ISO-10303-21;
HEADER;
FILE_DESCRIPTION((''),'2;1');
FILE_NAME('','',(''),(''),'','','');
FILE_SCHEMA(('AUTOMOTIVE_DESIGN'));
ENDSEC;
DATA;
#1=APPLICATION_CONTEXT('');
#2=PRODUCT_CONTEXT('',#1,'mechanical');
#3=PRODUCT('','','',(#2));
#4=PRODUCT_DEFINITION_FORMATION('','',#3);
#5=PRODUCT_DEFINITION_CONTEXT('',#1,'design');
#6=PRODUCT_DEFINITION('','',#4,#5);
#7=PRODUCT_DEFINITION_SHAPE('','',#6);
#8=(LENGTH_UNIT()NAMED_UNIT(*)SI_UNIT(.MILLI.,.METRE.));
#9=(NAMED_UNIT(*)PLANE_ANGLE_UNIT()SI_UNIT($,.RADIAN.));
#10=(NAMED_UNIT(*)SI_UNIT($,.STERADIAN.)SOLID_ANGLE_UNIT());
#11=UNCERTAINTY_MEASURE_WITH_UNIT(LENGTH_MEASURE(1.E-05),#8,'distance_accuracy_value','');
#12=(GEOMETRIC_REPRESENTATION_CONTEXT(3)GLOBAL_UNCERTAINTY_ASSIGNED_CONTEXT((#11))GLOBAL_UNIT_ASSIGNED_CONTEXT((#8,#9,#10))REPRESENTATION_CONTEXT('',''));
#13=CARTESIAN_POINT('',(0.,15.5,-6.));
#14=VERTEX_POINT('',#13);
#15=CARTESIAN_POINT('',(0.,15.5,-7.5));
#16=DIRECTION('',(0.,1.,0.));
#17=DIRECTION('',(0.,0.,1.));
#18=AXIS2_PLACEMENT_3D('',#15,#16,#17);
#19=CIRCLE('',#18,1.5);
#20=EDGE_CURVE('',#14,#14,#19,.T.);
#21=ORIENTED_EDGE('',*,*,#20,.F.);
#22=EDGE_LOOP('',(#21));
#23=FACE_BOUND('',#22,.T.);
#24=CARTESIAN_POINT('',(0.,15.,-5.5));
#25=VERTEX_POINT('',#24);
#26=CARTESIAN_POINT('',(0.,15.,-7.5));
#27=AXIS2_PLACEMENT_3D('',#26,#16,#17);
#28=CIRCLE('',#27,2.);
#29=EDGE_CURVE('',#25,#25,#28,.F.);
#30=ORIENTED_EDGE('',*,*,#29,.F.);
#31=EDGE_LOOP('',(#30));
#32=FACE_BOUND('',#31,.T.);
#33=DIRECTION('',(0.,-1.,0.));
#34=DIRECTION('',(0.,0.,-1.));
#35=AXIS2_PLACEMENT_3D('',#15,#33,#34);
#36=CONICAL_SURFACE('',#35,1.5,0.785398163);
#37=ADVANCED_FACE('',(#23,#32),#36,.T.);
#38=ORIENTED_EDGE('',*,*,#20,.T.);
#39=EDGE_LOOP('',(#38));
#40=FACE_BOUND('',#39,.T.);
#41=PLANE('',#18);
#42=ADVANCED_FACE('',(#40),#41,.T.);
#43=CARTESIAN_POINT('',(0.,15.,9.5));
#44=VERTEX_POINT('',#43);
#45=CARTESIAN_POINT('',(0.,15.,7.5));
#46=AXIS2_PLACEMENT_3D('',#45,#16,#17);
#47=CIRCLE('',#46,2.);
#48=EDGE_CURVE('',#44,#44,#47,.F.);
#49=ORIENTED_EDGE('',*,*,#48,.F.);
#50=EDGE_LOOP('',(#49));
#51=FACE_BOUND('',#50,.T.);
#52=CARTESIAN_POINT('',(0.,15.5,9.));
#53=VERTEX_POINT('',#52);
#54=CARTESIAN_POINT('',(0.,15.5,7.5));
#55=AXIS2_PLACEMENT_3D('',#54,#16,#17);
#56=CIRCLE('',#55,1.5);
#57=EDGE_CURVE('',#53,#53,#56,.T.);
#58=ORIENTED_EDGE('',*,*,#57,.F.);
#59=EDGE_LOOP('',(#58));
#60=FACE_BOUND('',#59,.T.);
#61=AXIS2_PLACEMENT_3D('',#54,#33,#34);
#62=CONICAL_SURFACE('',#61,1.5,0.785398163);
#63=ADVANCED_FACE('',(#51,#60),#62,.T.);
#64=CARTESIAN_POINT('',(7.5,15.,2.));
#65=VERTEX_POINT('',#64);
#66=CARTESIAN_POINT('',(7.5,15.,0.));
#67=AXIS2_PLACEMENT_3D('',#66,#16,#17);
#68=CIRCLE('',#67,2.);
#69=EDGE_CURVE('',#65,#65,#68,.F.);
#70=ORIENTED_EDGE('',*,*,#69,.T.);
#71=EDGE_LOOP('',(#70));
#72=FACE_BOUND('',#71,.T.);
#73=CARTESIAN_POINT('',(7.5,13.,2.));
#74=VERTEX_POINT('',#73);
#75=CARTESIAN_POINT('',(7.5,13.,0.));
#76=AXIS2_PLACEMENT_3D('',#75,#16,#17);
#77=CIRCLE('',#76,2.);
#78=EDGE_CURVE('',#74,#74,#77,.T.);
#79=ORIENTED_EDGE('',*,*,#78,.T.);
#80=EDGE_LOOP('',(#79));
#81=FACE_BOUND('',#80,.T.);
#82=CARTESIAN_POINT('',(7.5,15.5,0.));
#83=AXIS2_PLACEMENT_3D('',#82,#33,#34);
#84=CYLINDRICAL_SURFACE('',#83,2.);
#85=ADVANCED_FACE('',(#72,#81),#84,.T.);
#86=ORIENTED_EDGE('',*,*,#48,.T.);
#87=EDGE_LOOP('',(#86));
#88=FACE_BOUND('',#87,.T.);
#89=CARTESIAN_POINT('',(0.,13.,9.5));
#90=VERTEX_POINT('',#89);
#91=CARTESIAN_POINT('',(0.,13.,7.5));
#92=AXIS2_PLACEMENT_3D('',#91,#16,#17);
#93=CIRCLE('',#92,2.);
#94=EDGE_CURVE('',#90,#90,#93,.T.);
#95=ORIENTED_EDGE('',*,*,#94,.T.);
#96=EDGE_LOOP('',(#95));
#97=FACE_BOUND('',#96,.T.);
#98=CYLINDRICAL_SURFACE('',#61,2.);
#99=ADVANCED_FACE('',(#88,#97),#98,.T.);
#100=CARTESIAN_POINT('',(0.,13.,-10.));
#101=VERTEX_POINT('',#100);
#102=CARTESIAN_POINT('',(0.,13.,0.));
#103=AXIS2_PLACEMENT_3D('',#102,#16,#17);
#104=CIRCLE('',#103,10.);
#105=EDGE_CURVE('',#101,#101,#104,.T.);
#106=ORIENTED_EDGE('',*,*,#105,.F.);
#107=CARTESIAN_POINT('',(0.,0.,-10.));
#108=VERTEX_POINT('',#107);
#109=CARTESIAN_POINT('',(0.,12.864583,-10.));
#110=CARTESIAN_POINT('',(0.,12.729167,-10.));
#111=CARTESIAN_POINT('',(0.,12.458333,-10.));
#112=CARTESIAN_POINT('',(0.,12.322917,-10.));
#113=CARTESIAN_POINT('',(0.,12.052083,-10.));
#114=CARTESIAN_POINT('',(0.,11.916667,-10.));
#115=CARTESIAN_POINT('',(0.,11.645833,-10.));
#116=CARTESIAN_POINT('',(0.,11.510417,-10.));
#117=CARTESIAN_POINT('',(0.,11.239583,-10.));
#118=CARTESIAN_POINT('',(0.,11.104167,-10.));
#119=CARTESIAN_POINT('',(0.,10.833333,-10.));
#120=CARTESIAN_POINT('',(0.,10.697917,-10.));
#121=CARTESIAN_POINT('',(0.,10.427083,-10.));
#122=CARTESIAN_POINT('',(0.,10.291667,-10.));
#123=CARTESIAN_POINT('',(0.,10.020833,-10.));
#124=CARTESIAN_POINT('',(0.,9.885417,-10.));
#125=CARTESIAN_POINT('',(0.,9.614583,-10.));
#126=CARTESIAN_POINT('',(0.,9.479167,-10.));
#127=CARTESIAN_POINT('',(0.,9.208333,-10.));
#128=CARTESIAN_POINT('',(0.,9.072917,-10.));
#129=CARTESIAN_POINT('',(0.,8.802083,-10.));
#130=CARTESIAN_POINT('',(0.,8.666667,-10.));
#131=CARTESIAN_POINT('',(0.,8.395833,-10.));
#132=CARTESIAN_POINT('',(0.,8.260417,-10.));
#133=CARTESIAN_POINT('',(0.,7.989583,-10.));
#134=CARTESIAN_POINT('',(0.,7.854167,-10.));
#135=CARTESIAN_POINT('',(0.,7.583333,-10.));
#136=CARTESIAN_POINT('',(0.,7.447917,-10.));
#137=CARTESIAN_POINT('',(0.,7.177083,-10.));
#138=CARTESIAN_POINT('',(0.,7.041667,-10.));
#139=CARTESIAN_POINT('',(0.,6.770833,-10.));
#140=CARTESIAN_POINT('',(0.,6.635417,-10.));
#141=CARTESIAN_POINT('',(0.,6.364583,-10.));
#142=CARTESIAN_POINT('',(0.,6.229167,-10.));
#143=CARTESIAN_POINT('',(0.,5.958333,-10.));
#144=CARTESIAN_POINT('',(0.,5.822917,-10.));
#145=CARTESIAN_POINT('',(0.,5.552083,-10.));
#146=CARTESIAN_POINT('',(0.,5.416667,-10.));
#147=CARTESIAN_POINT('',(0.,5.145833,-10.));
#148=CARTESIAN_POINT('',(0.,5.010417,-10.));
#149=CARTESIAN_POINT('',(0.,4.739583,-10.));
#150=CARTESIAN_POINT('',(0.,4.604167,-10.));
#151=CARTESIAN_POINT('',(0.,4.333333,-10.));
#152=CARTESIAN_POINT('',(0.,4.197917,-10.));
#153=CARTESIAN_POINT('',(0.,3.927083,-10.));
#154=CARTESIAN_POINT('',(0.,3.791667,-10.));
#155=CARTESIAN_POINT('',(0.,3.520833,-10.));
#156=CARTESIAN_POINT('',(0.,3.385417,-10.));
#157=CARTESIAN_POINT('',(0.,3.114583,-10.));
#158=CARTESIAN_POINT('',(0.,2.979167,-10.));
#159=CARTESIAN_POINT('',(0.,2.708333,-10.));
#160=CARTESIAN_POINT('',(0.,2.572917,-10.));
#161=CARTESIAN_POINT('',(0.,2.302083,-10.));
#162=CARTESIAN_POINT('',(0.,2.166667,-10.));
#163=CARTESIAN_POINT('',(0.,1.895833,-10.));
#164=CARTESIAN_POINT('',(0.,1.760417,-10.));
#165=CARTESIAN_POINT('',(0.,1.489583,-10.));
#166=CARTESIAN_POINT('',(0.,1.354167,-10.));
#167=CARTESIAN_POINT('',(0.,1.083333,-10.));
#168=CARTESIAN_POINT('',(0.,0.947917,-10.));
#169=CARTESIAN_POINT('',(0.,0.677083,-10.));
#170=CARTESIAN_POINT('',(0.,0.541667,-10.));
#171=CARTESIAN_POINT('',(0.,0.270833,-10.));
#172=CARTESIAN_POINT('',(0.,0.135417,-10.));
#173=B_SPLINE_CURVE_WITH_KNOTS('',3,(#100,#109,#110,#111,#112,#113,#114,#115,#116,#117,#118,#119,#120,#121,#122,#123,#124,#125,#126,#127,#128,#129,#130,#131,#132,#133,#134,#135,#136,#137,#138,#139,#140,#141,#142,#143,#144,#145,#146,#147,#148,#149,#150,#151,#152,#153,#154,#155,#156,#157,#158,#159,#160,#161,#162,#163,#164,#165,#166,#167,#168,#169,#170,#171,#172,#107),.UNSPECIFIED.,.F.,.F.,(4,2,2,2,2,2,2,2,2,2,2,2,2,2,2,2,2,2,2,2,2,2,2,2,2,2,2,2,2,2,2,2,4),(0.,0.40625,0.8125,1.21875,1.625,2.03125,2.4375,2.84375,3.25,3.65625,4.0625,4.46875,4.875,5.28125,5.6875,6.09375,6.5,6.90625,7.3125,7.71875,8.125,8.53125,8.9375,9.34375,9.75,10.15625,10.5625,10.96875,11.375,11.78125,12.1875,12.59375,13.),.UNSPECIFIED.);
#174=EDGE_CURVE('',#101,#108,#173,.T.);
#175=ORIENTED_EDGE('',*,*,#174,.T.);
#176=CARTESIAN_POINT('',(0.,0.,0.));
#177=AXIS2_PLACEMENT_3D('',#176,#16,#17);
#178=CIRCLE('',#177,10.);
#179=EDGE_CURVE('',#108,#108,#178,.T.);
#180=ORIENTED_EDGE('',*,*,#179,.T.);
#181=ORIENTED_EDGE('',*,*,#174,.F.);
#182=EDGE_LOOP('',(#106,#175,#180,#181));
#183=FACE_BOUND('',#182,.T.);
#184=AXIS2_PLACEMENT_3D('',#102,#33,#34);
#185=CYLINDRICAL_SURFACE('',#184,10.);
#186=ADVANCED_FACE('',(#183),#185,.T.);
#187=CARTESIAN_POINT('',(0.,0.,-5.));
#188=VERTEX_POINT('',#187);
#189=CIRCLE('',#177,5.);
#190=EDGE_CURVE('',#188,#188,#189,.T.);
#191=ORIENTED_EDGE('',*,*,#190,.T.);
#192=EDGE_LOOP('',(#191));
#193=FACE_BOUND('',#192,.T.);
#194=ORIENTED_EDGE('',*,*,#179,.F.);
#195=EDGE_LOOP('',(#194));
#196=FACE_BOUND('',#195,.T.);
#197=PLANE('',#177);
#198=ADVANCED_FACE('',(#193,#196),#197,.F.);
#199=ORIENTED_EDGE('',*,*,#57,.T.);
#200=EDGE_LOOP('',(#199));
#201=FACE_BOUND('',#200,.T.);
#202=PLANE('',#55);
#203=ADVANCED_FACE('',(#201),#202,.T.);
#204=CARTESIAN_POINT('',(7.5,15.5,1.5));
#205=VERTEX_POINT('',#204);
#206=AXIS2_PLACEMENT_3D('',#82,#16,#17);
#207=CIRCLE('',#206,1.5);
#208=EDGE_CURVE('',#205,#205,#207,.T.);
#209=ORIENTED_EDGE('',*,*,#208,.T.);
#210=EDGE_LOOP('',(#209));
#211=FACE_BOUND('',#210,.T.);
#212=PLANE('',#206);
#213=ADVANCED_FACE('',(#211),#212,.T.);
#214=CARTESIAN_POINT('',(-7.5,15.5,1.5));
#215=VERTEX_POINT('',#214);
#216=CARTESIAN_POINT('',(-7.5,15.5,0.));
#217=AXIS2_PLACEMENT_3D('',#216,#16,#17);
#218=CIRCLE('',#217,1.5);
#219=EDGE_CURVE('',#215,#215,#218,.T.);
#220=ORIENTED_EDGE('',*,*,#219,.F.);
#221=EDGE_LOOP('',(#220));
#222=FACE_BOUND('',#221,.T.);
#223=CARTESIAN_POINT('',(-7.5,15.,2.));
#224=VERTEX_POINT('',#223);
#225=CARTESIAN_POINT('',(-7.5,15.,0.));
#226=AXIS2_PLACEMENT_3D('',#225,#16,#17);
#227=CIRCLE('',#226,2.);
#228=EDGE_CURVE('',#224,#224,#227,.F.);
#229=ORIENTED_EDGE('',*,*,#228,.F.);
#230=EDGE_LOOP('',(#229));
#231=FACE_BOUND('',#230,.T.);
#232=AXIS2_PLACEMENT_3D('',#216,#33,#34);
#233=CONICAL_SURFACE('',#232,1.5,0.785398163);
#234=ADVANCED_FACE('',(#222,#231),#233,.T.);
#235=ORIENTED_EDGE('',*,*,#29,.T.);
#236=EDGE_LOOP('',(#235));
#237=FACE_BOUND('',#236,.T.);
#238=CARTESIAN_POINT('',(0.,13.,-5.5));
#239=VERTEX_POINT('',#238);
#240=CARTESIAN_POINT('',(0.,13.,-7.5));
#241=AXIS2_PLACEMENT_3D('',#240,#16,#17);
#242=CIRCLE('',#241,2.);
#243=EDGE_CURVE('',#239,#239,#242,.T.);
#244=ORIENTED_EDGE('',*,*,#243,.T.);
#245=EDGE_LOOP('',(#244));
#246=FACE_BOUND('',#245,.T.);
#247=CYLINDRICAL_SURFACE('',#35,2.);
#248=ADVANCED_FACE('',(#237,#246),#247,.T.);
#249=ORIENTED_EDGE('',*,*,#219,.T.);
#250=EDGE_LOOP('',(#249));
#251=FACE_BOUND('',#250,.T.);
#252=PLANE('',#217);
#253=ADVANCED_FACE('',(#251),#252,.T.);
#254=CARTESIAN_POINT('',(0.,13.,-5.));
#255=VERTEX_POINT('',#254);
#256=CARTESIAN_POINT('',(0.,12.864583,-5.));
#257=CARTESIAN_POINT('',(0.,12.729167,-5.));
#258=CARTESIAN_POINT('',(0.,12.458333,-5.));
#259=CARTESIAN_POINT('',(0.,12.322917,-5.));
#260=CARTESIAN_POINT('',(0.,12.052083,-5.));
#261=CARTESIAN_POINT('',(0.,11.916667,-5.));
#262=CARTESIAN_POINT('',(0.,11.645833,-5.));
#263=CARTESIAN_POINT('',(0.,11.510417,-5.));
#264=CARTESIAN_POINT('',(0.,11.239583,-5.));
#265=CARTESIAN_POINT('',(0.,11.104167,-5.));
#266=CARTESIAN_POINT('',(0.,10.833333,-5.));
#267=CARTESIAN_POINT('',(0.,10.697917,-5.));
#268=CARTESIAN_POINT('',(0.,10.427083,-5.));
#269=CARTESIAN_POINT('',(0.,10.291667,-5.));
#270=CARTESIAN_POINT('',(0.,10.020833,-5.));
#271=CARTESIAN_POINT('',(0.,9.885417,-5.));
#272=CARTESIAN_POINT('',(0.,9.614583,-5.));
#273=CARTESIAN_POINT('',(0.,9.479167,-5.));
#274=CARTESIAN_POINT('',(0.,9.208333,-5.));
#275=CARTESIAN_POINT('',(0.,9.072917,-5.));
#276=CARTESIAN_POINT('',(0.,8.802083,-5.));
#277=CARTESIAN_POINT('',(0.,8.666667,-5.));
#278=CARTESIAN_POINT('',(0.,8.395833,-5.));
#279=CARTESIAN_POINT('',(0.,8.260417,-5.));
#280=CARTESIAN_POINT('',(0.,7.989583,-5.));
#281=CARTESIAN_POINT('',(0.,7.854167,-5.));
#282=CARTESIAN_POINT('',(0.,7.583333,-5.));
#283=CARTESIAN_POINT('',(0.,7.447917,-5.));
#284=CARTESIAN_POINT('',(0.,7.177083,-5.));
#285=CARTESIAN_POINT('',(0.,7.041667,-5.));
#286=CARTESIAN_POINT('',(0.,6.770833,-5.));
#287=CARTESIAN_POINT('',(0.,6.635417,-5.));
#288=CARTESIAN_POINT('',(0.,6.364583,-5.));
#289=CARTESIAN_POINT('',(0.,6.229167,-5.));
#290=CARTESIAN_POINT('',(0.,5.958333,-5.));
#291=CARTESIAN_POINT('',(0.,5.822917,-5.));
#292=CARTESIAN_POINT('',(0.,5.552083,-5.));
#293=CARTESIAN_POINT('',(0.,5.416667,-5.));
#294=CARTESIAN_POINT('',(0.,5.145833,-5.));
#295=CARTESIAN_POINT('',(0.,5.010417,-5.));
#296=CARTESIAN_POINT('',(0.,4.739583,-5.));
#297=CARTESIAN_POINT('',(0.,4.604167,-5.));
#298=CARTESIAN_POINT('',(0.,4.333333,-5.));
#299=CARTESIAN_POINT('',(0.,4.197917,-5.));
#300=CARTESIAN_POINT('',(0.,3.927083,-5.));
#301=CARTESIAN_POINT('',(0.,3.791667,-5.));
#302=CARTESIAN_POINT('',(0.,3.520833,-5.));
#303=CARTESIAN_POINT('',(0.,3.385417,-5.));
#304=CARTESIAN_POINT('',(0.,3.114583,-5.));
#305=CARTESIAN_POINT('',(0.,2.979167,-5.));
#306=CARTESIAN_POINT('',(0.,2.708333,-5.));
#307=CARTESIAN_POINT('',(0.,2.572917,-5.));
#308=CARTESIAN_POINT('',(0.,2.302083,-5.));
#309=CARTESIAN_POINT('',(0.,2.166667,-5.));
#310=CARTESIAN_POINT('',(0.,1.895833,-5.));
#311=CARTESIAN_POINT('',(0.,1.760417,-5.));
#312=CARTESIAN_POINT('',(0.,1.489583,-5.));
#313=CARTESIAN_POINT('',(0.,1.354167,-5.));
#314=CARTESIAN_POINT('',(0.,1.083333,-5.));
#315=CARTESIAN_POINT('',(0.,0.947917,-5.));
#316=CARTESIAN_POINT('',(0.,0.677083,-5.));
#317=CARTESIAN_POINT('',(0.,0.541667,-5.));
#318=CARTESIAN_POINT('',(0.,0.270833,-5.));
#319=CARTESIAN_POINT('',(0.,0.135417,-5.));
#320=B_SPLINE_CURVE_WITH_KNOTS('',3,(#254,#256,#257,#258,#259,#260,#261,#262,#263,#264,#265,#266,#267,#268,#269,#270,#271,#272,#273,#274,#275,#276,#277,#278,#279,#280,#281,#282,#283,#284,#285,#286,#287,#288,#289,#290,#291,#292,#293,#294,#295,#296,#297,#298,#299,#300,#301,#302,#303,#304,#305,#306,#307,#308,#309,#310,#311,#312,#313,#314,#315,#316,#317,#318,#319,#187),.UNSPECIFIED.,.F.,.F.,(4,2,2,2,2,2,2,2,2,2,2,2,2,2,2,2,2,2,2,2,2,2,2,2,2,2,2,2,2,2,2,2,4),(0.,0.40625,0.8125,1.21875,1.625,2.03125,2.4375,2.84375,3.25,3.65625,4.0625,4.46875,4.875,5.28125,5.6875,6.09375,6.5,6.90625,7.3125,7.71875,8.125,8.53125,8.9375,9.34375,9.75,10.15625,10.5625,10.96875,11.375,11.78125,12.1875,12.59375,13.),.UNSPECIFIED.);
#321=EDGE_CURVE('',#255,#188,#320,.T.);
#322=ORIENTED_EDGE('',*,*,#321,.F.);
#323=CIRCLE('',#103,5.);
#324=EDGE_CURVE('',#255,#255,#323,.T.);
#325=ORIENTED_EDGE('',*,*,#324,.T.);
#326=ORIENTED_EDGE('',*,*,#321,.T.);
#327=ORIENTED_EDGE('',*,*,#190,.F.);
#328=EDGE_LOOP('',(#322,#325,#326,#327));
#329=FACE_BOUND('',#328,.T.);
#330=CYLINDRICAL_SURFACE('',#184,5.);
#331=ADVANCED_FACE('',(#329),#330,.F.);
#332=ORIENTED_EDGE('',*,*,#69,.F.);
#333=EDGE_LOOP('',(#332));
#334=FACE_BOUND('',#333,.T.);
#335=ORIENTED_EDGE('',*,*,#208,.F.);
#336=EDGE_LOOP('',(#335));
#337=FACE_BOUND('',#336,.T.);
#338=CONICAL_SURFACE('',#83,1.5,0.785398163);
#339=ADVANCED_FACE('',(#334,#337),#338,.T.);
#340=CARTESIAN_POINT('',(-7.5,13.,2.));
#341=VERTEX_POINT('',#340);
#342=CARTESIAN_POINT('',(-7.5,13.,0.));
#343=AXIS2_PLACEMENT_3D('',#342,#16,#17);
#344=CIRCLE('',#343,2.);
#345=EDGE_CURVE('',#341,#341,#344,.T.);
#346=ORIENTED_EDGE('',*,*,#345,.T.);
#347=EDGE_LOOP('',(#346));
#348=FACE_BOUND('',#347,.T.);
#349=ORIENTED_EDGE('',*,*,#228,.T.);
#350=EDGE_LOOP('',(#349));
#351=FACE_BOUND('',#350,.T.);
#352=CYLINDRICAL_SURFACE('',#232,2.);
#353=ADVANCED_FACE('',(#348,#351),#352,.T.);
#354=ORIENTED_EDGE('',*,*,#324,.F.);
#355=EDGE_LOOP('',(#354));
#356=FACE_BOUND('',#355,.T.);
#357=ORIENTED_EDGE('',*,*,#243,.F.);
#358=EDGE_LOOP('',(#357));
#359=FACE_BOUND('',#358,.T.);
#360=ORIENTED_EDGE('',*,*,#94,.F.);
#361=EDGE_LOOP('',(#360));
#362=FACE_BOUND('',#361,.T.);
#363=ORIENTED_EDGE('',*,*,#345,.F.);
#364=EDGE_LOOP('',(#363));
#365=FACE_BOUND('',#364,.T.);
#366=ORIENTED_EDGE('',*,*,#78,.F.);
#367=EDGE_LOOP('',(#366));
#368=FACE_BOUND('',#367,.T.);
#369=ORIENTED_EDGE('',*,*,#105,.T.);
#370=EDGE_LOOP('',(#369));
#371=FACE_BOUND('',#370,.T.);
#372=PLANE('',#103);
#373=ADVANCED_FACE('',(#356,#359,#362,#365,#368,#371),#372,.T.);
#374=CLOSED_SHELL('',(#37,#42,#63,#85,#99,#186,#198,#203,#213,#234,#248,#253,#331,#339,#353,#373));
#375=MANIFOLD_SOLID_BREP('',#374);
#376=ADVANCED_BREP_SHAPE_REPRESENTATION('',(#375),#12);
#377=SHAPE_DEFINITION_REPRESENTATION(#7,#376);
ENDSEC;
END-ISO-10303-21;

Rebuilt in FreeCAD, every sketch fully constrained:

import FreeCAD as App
import Part
import Sketcher

V = App.Vector
Q = App.Units.Quantity


def edges_at(feature, points):
    """Names of the edges that pass closest to the given points."""
    edges = feature.Shape.Edges
    near = lambda p: min(range(len(edges)), key=lambda i: edges[i].distToShape(Part.Vertex(*p))[0])
    return sorted({f"Edge{near(p) + 1}" for p in points})

doc = App.newDocument("Part")
body = doc.addObject("PartDesign::Body", "Body")

# Sketch on XZ plane
sketch1 = doc.addObject("Sketcher::SketchObject", "Sketch")
body.addObject(sketch1)
sketch1.AttachmentSupport = (doc.XZ_Plane, [""])
sketch1.MapMode = "FlatFace"
sketch1.addGeometry([
    Part.Circle(V(0, 0, 0), V(0, 0, 1), 10),
    Part.Circle(V(0, 0, 0), V(0, 0, 1), 5),
], False)
sketch1.addConstraint([
    Sketcher.Constraint("Coincident", 0, 3, -1, 1),
    Sketcher.Constraint("Coincident", 1, 3, -1, 1),
    Sketcher.Constraint("Diameter", 0, Q("20 mm")),
    Sketcher.Constraint("Diameter", 1, Q("10 mm")),
])
pad1 = doc.addObject("PartDesign::Pad", "Pad")
body.addObject(pad1)
pad1.Profile = sketch1
pad1.Length = 13
pad1.Reversed = True

# Sketch on XZ plane
sketch2 = doc.addObject("Sketcher::SketchObject", "Sketch001")
body.addObject(sketch2)
sketch2.AttachmentSupport = (doc.XZ_Plane, [""])
sketch2.MapMode = "FlatFace"
sketch2.AttachmentOffset = App.Placement(V(0, 0, -13), App.Rotation())
sketch2.addGeometry([
    Part.Circle(V(0, -7.5, 0), V(0, 0, 1), 2),
    Part.Circle(V(7.5, 0, 0), V(0, 0, 1), 2),
    Part.Circle(V(0, 7.5, 0), V(0, 0, 1), 2),
    Part.Circle(V(-7.5, 0, 0), V(0, 0, 1), 2),
], False)
sketch2.addConstraint([
    Sketcher.Constraint("Equal", 0, 1),
    Sketcher.Constraint("Equal", 1, 2),
    Sketcher.Constraint("Equal", 2, 3),
    Sketcher.Constraint("Symmetric", 0, 3, 2, 3, -1, 1),
    Sketcher.Constraint("Symmetric", 1, 3, 3, 3, -1, 1),
    Sketcher.Constraint("PointOnObject", 0, 3, -2),
    Sketcher.Constraint("PointOnObject", 1, 3, -1),
    Sketcher.Constraint("Diameter", 0, Q("4 mm")),
    Sketcher.Constraint("DistanceY", 0, 3, 2, 3, Q("15 mm")),
    Sketcher.Constraint("DistanceX", 3, 3, 1, 3, Q("15 mm")),
])
pad2 = doc.addObject("PartDesign::Pad", "Pad001")
body.addObject(pad2)
pad2.Profile = sketch2
pad2.Length = 2.5
pad2.Reversed = True
doc.recompute()

chamfer = doc.addObject("PartDesign::Chamfer", "Chamfer")
body.addObject(chamfer)
chamfer.Base = (pad2, edges_at(pad2, [
    (0, 15.5, -9.5),
    (7.5, 15.5, -2),
    (0, 15.5, 5.5),
    (-7.5, 15.5, -2),
]))
chamfer.Size = 0.5

doc.recompute()
